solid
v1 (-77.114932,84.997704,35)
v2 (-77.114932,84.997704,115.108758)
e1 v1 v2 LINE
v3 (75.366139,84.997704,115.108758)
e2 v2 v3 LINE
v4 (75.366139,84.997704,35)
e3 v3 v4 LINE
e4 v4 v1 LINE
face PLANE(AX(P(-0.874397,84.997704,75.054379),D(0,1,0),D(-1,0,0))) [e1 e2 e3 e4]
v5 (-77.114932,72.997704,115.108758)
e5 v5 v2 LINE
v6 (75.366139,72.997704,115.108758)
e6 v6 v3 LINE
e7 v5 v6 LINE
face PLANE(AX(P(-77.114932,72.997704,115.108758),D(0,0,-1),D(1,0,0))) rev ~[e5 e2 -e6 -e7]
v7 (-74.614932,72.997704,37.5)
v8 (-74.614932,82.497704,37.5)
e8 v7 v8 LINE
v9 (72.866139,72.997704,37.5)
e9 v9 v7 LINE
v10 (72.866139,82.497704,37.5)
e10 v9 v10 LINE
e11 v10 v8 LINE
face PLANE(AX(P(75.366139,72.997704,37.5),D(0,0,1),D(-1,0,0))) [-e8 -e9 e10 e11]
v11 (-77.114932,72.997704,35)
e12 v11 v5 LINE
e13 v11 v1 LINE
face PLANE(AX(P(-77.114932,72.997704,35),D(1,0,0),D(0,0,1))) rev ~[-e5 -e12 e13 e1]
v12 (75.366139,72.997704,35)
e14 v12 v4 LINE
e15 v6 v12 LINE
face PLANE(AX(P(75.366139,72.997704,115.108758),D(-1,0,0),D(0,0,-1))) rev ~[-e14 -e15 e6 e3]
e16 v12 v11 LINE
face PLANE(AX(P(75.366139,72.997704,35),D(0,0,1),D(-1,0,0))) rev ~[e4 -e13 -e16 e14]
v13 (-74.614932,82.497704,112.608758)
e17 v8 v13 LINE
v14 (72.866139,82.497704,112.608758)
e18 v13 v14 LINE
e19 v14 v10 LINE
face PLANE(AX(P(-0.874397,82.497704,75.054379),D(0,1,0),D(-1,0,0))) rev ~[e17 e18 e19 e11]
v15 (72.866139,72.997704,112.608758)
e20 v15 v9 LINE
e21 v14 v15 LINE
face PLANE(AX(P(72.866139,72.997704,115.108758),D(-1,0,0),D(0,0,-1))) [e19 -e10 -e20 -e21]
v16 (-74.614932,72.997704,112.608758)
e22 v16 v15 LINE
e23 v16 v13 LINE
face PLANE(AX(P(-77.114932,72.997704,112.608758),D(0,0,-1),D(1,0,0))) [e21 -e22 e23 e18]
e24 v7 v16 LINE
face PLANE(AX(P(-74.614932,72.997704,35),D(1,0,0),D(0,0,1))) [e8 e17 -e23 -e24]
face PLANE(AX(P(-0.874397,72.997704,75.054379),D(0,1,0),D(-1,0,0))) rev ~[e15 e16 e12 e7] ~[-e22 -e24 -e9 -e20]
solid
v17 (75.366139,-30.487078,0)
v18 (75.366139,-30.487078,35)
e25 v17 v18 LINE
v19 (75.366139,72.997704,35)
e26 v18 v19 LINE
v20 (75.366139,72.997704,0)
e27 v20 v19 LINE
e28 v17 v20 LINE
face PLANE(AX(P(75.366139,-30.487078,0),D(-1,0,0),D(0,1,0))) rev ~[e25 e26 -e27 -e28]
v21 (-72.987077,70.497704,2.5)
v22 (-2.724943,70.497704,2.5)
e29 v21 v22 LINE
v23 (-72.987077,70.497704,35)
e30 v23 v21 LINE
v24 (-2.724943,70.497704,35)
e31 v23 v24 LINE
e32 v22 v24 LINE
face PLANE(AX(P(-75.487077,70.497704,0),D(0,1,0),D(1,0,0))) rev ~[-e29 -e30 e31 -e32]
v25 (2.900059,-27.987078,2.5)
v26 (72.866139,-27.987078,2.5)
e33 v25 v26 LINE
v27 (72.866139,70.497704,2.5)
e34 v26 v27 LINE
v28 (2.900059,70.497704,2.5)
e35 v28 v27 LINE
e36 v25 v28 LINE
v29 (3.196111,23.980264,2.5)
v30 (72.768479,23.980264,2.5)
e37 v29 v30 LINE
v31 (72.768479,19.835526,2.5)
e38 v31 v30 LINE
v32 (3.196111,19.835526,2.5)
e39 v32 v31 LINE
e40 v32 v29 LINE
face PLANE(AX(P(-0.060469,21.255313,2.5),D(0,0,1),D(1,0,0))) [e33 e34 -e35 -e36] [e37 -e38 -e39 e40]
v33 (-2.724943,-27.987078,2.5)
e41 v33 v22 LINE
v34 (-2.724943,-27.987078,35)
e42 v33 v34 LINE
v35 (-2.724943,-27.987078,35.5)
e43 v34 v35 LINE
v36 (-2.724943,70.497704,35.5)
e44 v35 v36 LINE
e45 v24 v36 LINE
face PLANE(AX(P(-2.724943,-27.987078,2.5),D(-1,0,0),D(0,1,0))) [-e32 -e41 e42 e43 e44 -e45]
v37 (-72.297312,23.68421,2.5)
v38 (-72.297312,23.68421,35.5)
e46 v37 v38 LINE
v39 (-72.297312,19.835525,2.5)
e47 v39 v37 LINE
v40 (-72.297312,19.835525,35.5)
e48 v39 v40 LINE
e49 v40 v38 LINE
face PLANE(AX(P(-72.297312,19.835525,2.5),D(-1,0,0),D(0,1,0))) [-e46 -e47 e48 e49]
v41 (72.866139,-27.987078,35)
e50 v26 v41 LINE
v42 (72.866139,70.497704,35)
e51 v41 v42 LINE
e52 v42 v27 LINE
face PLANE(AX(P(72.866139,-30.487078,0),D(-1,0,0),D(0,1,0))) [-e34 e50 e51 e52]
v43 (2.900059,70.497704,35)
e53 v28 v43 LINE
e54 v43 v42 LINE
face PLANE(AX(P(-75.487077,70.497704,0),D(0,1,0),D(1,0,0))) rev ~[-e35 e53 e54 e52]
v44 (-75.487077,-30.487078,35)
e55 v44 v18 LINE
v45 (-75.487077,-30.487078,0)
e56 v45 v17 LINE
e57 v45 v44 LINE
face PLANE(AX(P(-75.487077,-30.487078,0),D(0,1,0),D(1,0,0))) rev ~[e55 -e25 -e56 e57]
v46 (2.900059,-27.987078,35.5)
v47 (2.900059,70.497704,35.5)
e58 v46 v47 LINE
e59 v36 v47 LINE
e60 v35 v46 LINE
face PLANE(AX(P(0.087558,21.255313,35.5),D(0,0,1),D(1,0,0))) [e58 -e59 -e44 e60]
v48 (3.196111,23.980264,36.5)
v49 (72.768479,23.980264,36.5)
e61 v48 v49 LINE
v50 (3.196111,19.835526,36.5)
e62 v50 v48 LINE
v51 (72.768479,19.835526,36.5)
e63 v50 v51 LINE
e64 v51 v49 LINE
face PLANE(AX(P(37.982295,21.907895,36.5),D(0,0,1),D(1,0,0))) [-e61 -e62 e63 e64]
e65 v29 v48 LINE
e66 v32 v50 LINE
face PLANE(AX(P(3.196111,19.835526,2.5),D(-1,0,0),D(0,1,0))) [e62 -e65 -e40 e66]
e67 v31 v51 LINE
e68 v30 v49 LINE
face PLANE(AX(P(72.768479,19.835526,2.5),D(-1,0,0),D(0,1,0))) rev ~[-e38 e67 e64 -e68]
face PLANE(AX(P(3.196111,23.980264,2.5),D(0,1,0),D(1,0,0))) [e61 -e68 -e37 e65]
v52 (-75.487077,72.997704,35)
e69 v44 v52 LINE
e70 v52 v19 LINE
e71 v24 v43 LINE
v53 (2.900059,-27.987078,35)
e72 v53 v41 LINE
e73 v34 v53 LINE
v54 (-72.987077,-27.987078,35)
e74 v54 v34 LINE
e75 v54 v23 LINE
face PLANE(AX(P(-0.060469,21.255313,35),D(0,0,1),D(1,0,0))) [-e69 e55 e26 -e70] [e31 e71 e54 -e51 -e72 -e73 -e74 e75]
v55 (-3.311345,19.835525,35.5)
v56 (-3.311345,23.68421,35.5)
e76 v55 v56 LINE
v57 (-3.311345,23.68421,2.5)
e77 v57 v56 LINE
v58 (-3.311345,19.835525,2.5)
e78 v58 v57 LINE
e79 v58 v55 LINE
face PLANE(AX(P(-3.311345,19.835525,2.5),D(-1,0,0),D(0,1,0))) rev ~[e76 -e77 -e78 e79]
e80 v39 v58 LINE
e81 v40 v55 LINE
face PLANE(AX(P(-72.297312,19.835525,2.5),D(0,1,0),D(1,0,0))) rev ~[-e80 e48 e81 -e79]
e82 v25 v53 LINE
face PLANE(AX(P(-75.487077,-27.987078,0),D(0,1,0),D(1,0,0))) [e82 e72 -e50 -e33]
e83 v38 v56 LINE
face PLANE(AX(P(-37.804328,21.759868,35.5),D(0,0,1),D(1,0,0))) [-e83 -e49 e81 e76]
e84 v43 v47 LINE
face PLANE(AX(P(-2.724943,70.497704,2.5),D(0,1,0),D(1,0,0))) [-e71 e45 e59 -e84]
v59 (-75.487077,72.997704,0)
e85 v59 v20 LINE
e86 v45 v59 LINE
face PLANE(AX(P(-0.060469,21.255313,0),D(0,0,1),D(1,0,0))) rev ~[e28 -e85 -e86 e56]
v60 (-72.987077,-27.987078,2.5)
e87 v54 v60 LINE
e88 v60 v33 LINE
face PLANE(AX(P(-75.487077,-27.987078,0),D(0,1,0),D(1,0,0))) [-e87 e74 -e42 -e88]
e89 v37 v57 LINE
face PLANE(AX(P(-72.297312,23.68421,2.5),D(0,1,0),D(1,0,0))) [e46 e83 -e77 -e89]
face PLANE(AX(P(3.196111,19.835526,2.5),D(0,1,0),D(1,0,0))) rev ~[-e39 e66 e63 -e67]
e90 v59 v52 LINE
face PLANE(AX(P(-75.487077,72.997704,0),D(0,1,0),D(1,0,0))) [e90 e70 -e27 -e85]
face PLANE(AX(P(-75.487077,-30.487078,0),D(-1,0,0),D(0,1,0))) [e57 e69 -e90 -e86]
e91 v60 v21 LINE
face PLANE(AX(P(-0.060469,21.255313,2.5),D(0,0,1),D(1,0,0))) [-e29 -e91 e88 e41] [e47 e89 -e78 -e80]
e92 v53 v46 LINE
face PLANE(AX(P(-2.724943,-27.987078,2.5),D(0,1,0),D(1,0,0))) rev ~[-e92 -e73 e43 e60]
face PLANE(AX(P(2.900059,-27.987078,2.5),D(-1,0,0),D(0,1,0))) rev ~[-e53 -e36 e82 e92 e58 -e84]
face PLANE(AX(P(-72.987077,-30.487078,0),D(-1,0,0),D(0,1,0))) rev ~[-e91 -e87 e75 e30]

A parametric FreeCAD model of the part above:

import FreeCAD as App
import Part
import Sketcher


def faces_at(feature, points):
    """Names of the faces that lie closest to the given points."""
    faces = feature.Shape.Faces
    near = lambda p: min(range(len(faces)), key=lambda i: faces[i].distToShape(Part.Vertex(*p))[0])
    return sorted({f"Face{near(p) + 1}" for p in points})


def add_polygon(sketch, points):
    """Adds a closed chain of lines whose ends are joined by coincident constraints."""
    first, n = sketch.GeometryCount, len(points)
    for a, b in zip(points, points[1:] + points[:1]):
        sketch.addGeometry(Part.LineSegment(App.Vector(*a, 0), App.Vector(*b, 0)), False)
    for i in range(n):
        sketch.addConstraint(Sketcher.Constraint("Coincident", first + i, 2, first + (i + 1) % n, 1))

doc = App.newDocument("Part")
params = doc.addObject("Spreadsheet::Sheet", "Params")
for row, (alias, value) in enumerate([
    ("pad1_length", "35 mm"),
    ("thickness_wall", "2.5 mm"),
    ("pad2_length", "33 mm"),
    ("pad3_length", "34 mm"),
    ("pad4_length", "33 mm"),
    ("pad5_length", "12 mm"),
    ("thickness2_wall", "2.5 mm"),
], start=1):
    params.set(f"A{row}", alias)
    params.set(f"B{row}", "=" + value)
    params.setAlias(f"B{row}", alias)

body = doc.addObject("PartDesign::Body", "Body")

# Sketch on XY plane
sketch1 = body.newObject("Sketcher::SketchObject", "Sketch")
sketch1.AttachmentSupport = (doc.getObject("XY_Plane"), [""])
sketch1.MapMode = "FlatFace"
add_polygon(sketch1, [(-75, 73), (-75, -30), (75, -30), (75, 73)])  # lines 0-3
sketch1.addConstraint(Sketcher.Constraint("Vertical", 0))
sketch1.addConstraint(Sketcher.Constraint("Horizontal", 1))
sketch1.addConstraint(Sketcher.Constraint("Vertical", 2))
sketch1.addConstraint(Sketcher.Constraint("Horizontal", 3))
sketch1.addConstraint(Sketcher.Constraint("DistanceX", 1, 1, 1, 2, 150.853216))
sketch1.addConstraint(Sketcher.Constraint("DistanceY", 0, 2, 0, 1, 103.484783))
sketch1.addConstraint(Sketcher.Constraint("DistanceY", 0, 2, -1, 1, 30.487078))
sketch1.addConstraint(Sketcher.Constraint("DistanceX", -1, 1, 1, 2, 75.366139))
pad1 = body.newObject("PartDesign::Pad", "Pad")
pad1.Profile = sketch1
pad1.setExpression("Length", "Params.pad1_length")
doc.recompute()

thickness = body.newObject("PartDesign::Thickness", "Thickness")
thickness.Base = (pad1, faces_at(pad1, [(-0.06, 21.255, 35)]))
thickness.setExpression("Value", "Params.thickness_wall")
thickness.Reversed = True
thickness.Join = "Arc"

# Sketch on XY plane
sketch2 = body.newObject("Sketcher::SketchObject", "Sketch001")
sketch2.AttachmentSupport = (doc.getObject("XY_Plane"), [""])
sketch2.MapMode = "FlatFace"
sketch2.AttachmentOffset = App.Placement(App.Vector(0, 0, 2.5), App.Rotation())
add_polygon(sketch2, [(-3, 70), (-3, -28), (3, -28), (3, 70)])  # lines 0-3
sketch2.addConstraint(Sketcher.Constraint("Vertical", 0))
sketch2.addConstraint(Sketcher.Constraint("Horizontal", 1))
sketch2.addConstraint(Sketcher.Constraint("Vertical", 2))
sketch2.addConstraint(Sketcher.Constraint("Horizontal", 3))
sketch2.addConstraint(Sketcher.Constraint("DistanceX", 1, 1, 1, 2, 5.625002))
sketch2.addConstraint(Sketcher.Constraint("DistanceY", 0, 2, 0, 1, 98.484783))
sketch2.addConstraint(Sketcher.Constraint("DistanceY", 0, 2, -1, 1, 27.987078))
sketch2.addConstraint(Sketcher.Constraint("DistanceX", -1, 1, 1, 2, 2.900059))
pad2 = body.newObject("PartDesign::Pad", "Pad001")
pad2.Profile = sketch2
pad2.setExpression("Length", "Params.pad2_length")

# Sketch on XY plane
sketch3 = body.newObject("Sketcher::SketchObject", "Sketch002")
sketch3.AttachmentSupport = (doc.getObject("XY_Plane"), [""])
sketch3.MapMode = "FlatFace"
sketch3.AttachmentOffset = App.Placement(App.Vector(0, 0, 2.5), App.Rotation())
add_polygon(sketch3, [(3.2, 24), (3.2, 19.8), (72.8, 19.8), (72.8, 24)])  # lines 0-3
sketch3.addConstraint(Sketcher.Constraint("Vertical", 0))
sketch3.addConstraint(Sketcher.Constraint("Horizontal", 1))
sketch3.addConstraint(Sketcher.Constraint("Vertical", 2))
sketch3.addConstraint(Sketcher.Constraint("Horizontal", 3))
sketch3.addConstraint(Sketcher.Constraint("DistanceX", 1, 1, 1, 2, 69.572369))
sketch3.addConstraint(Sketcher.Constraint("DistanceY", 0, 2, 0, 1, 4.144738))
sketch3.addConstraint(Sketcher.Constraint("DistanceX", -1, 1, 0, 2, 3.196111))
sketch3.addConstraint(Sketcher.Constraint("DistanceY", -1, 1, 0, 2, 19.835526))
pad3 = body.newObject("PartDesign::Pad", "Pad002")
pad3.Profile = sketch3
pad3.setExpression("Length", "Params.pad3_length")

# Sketch on XY plane
sketch4 = body.newObject("Sketcher::SketchObject", "Sketch003")
sketch4.AttachmentSupport = (doc.getObject("XY_Plane"), [""])
sketch4.MapMode = "FlatFace"
sketch4.AttachmentOffset = App.Placement(App.Vector(0, 0, 2.5), App.Rotation())
add_polygon(sketch4, [(-72.3, 23.7), (-72.3, 19.8), (-3.3, 19.8), (-3.3, 23.7)])  # lines 0-3
sketch4.addConstraint(Sketcher.Constraint("Vertical", 0))
sketch4.addConstraint(Sketcher.Constraint("Horizontal", 1))
sketch4.addConstraint(Sketcher.Constraint("Vertical", 2))
sketch4.addConstraint(Sketcher.Constraint("Horizontal", 3))
sketch4.addConstraint(Sketcher.Constraint("DistanceX", 1, 1, 1, 2, 68.985967))
sketch4.addConstraint(Sketcher.Constraint("DistanceY", 0, 2, 0, 1, 3.848685))
sketch4.addConstraint(Sketcher.Constraint("DistanceX", 0, 2, -1, 1, 72.297312))
sketch4.addConstraint(Sketcher.Constraint("DistanceY", -1, 1, 2, 2, 23.68421))
pad4 = body.newObject("PartDesign::Pad", "Pad003")
pad4.Profile = sketch4
pad4.setExpression("Length", "Params.pad4_length")
body2 = doc.addObject("PartDesign::Body", "Body001")

# Sketch on XZ plane
sketch5 = body2.newObject("Sketcher::SketchObject", "Sketch004")
sketch5.AttachmentSupport = (doc.getObject("XZ_Plane001"), [""])
sketch5.MapMode = "FlatFace"
sketch5.AttachmentOffset = App.Placement(App.Vector(0, 0, -72.997704), App.Rotation())
add_polygon(sketch5, [(75, 115), (75, 35), (-77, 35), (-77, 115)])  # lines 0-3
sketch5.addConstraint(Sketcher.Constraint("Vertical", 0))
sketch5.addConstraint(Sketcher.Constraint("Horizontal", 1))
sketch5.addConstraint(Sketcher.Constraint("Vertical", 2))
sketch5.addConstraint(Sketcher.Constraint("Horizontal", 3))
sketch5.addConstraint(Sketcher.Constraint("DistanceY", -1, 1, 0, 2, 35.0))
sketch5.addConstraint(Sketcher.Constraint("DistanceX", 1, 2, 1, 1, 152.481071))
sketch5.addConstraint(Sketcher.Constraint("DistanceY", 0, 2, 0, 1, 80.108758))
sketch5.addConstraint(Sketcher.Constraint("DistanceX", -1, 1, 0, 2, 75.366139))
pad5 = body2.newObject("PartDesign::Pad", "Pad004")
pad5.Profile = sketch5
pad5.setExpression("Length", "Params.pad5_length")
pad5.Reversed = True
doc.recompute()

thickness2 = body2.newObject("PartDesign::Thickness", "Thickness001")
thickness2.Base = (pad5, faces_at(pad5, [(-0.874, 72.998, 75.054)]))
thickness2.setExpression("Value", "Params.thickness2_wall")
thickness2.Reversed = True
thickness2.Join = "Arc"

doc.recompute()
